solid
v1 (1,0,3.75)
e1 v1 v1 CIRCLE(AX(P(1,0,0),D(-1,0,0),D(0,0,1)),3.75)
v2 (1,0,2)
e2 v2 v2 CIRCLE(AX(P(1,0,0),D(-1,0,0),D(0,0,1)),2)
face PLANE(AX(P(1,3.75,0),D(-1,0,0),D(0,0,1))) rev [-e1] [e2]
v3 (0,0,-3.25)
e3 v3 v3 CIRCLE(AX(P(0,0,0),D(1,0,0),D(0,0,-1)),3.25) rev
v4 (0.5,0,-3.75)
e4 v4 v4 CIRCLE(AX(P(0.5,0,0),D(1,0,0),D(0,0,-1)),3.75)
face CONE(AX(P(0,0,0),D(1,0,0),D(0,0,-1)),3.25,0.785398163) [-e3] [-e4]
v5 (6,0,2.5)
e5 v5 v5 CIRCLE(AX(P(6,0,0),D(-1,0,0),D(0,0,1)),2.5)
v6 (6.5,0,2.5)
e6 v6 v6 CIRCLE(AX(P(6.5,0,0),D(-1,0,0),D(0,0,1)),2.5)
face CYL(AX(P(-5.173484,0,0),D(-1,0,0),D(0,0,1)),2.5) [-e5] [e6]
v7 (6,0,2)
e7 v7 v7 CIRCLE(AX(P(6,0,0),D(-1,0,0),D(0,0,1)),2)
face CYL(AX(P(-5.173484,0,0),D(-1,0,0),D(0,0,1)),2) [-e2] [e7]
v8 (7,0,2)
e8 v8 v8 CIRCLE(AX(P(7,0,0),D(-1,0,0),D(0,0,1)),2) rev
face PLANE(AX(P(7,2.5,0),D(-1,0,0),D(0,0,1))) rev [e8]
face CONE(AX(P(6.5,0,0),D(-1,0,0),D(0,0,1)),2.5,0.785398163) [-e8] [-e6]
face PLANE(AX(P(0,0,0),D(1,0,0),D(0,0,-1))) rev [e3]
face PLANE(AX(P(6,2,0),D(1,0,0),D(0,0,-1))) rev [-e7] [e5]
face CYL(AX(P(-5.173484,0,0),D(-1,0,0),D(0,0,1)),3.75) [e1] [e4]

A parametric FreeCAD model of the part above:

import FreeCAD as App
import Part
import Sketcher


def edges_at(feature, points):
    """Names of the edges that pass closest to the given points."""
    edges = feature.Shape.Edges
    near = lambda p: min(range(len(edges)), key=lambda i: edges[i].distToShape(Part.Vertex(*p))[0])
    return sorted({f"Edge{near(p) + 1}" for p in points})

doc = App.newDocument("Part")
params = doc.addObject("Spreadsheet::Sheet", "Params")
for row, (alias, value) in enumerate([
    ("sketch1_width", "7 mm"),
    ("sketch1_width2", "1 mm"),
    ("sketch1_height", "2.5 mm"),
    ("sketch1_height2", "0.5 mm"),
    ("sketch1_height3", "3.75 mm"),
    ("revolution_angle", "360 deg"),
    ("chamfer_size", "0.5 mm"),
], start=1):
    params.set(f"A{row}", alias)
    params.set(f"B{row}", "=" + value)
    params.setAlias(f"B{row}", alias)

body = doc.addObject("PartDesign::Body", "Body")

# Sketch on XY plane
sketch1 = body.newObject("Sketcher::SketchObject", "Sketch")
sketch1.AttachmentSupport = (doc.getObject("XY_Plane"), [""])
sketch1.MapMode = "FlatFace"
sketch1.addGeometry(Part.LineSegment(App.Vector(0, 3.8, 0), App.Vector(0, 0, 0)), False)
sketch1.addGeometry(Part.LineSegment(App.Vector(0, 0, 0), App.Vector(7, 0, 0)), False)
sketch1.addGeometry(Part.LineSegment(App.Vector(7, 0, 0), App.Vector(7, 2.5, 0)), False)
sketch1.addGeometry(Part.LineSegment(App.Vector(7, 2.5, 0), App.Vector(6, 2.5, 0)), False)
sketch1.addGeometry(Part.LineSegment(App.Vector(6, 2.5, 0), App.Vector(6, 2, 0)), False)
sketch1.addGeometry(Part.LineSegment(App.Vector(6, 2, 0), App.Vector(1, 2, 0)), False)
sketch1.addGeometry(Part.LineSegment(App.Vector(1, 2, 0), App.Vector(1, 3.8, 0)), False)
sketch1.addGeometry(Part.LineSegment(App.Vector(1, 3.8, 0), App.Vector(0, 3.8, 0)), False)
sketch1.addConstraint(Sketcher.Constraint("Coincident", 0, 2, 1, 1))
sketch1.addConstraint(Sketcher.Constraint("Coincident", 1, 2, 2, 1))
sketch1.addConstraint(Sketcher.Constraint("Coincident", 2, 2, 3, 1))
sketch1.addConstraint(Sketcher.Constraint("Coincident", 3, 2, 4, 1))
sketch1.addConstraint(Sketcher.Constraint("Coincident", 4, 2, 5, 1))
sketch1.addConstraint(Sketcher.Constraint("Coincident", 5, 2, 6, 1))
sketch1.addConstraint(Sketcher.Constraint("Coincident", 6, 2, 7, 1))
sketch1.addConstraint(Sketcher.Constraint("Coincident", 7, 2, 0, 1))
sketch1.addConstraint(Sketcher.Constraint("Vertical", 0))
sketch1.addConstraint(Sketcher.Constraint("Horizontal", 1))
sketch1.addConstraint(Sketcher.Constraint("Vertical", 2))
sketch1.addConstraint(Sketcher.Constraint("Horizontal", 3))
sketch1.addConstraint(Sketcher.Constraint("Vertical", 4))
sketch1.addConstraint(Sketcher.Constraint("Horizontal", 5))
sketch1.addConstraint(Sketcher.Constraint("Vertical", 6))
sketch1.addConstraint(Sketcher.Constraint("Horizontal", 7))
sketch1.addConstraint(Sketcher.Constraint("Coincident", 0, 2, -1, 1))
sketch1.addConstraint(Sketcher.Constraint("Equal", 3, 7))
sketch1.addConstraint(Sketcher.Constraint("DistanceX", 1, 1, 1, 2, 7.0))
sketch1.addConstraint(Sketcher.Constraint("DistanceX", 3, 2, 3, 1, 1.0))
sketch1.addConstraint(Sketcher.Constraint("DistanceY", 2, 1, 2, 2, 2.5))
sketch1.addConstraint(Sketcher.Constraint("DistanceY", 4, 2, 4, 1, 0.5))
sketch1.addConstraint(Sketcher.Constraint("DistanceY", 0, 2, 0, 1, 3.75))
sketch1.setExpression("Constraints[18]", "Params.sketch1_width")
sketch1.setExpression("Constraints[19]", "Params.sketch1_width2")
sketch1.setExpression("Constraints[20]", "Params.sketch1_height")
sketch1.setExpression("Constraints[21]", "Params.sketch1_height2")
sketch1.setExpression("Constraints[22]", "Params.sketch1_height3")
revolution = body.newObject("PartDesign::Revolution", "Revolution")
revolution.Profile = sketch1
revolution.ReferenceAxis = (sketch1, ["H_Axis"])
revolution.setExpression("Angle", "Params.revolution_angle")
doc.recompute()

chamfer = body.newObject("PartDesign::Chamfer", "Chamfer")
chamfer.Base = (revolution, edges_at(revolution, [(7, 0, -2.5), (0, 0, -3.75)]))
chamfer.setExpression("Size", "Params.chamfer_size")

doc.recompute()
